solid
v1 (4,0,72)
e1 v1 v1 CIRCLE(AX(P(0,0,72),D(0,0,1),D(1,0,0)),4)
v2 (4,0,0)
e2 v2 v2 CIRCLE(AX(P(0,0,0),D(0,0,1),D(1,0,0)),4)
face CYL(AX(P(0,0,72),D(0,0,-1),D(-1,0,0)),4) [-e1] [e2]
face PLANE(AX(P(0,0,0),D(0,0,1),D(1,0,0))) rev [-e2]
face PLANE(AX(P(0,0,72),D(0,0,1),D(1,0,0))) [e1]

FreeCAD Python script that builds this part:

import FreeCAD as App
import Part
import Sketcher
Q = App.Units.Quantity

doc = App.newDocument("Part")
params = doc.addObject("Spreadsheet::Sheet", "Params")
for row, (alias, value) in enumerate([
    ("sketch1_diameter", "8 mm"),
    ("pad1_length", "72 mm"),
], start=1):
    params.set(f"A{row}", alias)
    params.set(f"B{row}", "=" + value)
    params.setAlias(f"B{row}", alias)

body = doc.addObject("PartDesign::Body", "Body")

sketch1 = doc.addObject("Sketcher::SketchObject", "Sketch")
body.addObject(sketch1)
sketch1.AttachmentSupport = (doc.XY_Plane, [""])
sketch1.MapMode = "FlatFace"
sketch1.addGeometry(Part.Circle(App.Vector(0, 0, 0), App.Vector(0, 0, 1), 4), False)
sketch1.addConstraint(Sketcher.Constraint("Coincident", 0, 3, -1, 1))
sketch1.addConstraint(Sketcher.Constraint("Diameter", 0, Q("8 mm")))
sketch1.setExpression("Constraints[1]", "Params.sketch1_diameter")
pad1 = doc.addObject("PartDesign::Pad", "Pad")
body.addObject(pad1)
pad1.Profile = sketch1
pad1.setExpression("Length", "Params.pad1_length")

doc.recompute()
